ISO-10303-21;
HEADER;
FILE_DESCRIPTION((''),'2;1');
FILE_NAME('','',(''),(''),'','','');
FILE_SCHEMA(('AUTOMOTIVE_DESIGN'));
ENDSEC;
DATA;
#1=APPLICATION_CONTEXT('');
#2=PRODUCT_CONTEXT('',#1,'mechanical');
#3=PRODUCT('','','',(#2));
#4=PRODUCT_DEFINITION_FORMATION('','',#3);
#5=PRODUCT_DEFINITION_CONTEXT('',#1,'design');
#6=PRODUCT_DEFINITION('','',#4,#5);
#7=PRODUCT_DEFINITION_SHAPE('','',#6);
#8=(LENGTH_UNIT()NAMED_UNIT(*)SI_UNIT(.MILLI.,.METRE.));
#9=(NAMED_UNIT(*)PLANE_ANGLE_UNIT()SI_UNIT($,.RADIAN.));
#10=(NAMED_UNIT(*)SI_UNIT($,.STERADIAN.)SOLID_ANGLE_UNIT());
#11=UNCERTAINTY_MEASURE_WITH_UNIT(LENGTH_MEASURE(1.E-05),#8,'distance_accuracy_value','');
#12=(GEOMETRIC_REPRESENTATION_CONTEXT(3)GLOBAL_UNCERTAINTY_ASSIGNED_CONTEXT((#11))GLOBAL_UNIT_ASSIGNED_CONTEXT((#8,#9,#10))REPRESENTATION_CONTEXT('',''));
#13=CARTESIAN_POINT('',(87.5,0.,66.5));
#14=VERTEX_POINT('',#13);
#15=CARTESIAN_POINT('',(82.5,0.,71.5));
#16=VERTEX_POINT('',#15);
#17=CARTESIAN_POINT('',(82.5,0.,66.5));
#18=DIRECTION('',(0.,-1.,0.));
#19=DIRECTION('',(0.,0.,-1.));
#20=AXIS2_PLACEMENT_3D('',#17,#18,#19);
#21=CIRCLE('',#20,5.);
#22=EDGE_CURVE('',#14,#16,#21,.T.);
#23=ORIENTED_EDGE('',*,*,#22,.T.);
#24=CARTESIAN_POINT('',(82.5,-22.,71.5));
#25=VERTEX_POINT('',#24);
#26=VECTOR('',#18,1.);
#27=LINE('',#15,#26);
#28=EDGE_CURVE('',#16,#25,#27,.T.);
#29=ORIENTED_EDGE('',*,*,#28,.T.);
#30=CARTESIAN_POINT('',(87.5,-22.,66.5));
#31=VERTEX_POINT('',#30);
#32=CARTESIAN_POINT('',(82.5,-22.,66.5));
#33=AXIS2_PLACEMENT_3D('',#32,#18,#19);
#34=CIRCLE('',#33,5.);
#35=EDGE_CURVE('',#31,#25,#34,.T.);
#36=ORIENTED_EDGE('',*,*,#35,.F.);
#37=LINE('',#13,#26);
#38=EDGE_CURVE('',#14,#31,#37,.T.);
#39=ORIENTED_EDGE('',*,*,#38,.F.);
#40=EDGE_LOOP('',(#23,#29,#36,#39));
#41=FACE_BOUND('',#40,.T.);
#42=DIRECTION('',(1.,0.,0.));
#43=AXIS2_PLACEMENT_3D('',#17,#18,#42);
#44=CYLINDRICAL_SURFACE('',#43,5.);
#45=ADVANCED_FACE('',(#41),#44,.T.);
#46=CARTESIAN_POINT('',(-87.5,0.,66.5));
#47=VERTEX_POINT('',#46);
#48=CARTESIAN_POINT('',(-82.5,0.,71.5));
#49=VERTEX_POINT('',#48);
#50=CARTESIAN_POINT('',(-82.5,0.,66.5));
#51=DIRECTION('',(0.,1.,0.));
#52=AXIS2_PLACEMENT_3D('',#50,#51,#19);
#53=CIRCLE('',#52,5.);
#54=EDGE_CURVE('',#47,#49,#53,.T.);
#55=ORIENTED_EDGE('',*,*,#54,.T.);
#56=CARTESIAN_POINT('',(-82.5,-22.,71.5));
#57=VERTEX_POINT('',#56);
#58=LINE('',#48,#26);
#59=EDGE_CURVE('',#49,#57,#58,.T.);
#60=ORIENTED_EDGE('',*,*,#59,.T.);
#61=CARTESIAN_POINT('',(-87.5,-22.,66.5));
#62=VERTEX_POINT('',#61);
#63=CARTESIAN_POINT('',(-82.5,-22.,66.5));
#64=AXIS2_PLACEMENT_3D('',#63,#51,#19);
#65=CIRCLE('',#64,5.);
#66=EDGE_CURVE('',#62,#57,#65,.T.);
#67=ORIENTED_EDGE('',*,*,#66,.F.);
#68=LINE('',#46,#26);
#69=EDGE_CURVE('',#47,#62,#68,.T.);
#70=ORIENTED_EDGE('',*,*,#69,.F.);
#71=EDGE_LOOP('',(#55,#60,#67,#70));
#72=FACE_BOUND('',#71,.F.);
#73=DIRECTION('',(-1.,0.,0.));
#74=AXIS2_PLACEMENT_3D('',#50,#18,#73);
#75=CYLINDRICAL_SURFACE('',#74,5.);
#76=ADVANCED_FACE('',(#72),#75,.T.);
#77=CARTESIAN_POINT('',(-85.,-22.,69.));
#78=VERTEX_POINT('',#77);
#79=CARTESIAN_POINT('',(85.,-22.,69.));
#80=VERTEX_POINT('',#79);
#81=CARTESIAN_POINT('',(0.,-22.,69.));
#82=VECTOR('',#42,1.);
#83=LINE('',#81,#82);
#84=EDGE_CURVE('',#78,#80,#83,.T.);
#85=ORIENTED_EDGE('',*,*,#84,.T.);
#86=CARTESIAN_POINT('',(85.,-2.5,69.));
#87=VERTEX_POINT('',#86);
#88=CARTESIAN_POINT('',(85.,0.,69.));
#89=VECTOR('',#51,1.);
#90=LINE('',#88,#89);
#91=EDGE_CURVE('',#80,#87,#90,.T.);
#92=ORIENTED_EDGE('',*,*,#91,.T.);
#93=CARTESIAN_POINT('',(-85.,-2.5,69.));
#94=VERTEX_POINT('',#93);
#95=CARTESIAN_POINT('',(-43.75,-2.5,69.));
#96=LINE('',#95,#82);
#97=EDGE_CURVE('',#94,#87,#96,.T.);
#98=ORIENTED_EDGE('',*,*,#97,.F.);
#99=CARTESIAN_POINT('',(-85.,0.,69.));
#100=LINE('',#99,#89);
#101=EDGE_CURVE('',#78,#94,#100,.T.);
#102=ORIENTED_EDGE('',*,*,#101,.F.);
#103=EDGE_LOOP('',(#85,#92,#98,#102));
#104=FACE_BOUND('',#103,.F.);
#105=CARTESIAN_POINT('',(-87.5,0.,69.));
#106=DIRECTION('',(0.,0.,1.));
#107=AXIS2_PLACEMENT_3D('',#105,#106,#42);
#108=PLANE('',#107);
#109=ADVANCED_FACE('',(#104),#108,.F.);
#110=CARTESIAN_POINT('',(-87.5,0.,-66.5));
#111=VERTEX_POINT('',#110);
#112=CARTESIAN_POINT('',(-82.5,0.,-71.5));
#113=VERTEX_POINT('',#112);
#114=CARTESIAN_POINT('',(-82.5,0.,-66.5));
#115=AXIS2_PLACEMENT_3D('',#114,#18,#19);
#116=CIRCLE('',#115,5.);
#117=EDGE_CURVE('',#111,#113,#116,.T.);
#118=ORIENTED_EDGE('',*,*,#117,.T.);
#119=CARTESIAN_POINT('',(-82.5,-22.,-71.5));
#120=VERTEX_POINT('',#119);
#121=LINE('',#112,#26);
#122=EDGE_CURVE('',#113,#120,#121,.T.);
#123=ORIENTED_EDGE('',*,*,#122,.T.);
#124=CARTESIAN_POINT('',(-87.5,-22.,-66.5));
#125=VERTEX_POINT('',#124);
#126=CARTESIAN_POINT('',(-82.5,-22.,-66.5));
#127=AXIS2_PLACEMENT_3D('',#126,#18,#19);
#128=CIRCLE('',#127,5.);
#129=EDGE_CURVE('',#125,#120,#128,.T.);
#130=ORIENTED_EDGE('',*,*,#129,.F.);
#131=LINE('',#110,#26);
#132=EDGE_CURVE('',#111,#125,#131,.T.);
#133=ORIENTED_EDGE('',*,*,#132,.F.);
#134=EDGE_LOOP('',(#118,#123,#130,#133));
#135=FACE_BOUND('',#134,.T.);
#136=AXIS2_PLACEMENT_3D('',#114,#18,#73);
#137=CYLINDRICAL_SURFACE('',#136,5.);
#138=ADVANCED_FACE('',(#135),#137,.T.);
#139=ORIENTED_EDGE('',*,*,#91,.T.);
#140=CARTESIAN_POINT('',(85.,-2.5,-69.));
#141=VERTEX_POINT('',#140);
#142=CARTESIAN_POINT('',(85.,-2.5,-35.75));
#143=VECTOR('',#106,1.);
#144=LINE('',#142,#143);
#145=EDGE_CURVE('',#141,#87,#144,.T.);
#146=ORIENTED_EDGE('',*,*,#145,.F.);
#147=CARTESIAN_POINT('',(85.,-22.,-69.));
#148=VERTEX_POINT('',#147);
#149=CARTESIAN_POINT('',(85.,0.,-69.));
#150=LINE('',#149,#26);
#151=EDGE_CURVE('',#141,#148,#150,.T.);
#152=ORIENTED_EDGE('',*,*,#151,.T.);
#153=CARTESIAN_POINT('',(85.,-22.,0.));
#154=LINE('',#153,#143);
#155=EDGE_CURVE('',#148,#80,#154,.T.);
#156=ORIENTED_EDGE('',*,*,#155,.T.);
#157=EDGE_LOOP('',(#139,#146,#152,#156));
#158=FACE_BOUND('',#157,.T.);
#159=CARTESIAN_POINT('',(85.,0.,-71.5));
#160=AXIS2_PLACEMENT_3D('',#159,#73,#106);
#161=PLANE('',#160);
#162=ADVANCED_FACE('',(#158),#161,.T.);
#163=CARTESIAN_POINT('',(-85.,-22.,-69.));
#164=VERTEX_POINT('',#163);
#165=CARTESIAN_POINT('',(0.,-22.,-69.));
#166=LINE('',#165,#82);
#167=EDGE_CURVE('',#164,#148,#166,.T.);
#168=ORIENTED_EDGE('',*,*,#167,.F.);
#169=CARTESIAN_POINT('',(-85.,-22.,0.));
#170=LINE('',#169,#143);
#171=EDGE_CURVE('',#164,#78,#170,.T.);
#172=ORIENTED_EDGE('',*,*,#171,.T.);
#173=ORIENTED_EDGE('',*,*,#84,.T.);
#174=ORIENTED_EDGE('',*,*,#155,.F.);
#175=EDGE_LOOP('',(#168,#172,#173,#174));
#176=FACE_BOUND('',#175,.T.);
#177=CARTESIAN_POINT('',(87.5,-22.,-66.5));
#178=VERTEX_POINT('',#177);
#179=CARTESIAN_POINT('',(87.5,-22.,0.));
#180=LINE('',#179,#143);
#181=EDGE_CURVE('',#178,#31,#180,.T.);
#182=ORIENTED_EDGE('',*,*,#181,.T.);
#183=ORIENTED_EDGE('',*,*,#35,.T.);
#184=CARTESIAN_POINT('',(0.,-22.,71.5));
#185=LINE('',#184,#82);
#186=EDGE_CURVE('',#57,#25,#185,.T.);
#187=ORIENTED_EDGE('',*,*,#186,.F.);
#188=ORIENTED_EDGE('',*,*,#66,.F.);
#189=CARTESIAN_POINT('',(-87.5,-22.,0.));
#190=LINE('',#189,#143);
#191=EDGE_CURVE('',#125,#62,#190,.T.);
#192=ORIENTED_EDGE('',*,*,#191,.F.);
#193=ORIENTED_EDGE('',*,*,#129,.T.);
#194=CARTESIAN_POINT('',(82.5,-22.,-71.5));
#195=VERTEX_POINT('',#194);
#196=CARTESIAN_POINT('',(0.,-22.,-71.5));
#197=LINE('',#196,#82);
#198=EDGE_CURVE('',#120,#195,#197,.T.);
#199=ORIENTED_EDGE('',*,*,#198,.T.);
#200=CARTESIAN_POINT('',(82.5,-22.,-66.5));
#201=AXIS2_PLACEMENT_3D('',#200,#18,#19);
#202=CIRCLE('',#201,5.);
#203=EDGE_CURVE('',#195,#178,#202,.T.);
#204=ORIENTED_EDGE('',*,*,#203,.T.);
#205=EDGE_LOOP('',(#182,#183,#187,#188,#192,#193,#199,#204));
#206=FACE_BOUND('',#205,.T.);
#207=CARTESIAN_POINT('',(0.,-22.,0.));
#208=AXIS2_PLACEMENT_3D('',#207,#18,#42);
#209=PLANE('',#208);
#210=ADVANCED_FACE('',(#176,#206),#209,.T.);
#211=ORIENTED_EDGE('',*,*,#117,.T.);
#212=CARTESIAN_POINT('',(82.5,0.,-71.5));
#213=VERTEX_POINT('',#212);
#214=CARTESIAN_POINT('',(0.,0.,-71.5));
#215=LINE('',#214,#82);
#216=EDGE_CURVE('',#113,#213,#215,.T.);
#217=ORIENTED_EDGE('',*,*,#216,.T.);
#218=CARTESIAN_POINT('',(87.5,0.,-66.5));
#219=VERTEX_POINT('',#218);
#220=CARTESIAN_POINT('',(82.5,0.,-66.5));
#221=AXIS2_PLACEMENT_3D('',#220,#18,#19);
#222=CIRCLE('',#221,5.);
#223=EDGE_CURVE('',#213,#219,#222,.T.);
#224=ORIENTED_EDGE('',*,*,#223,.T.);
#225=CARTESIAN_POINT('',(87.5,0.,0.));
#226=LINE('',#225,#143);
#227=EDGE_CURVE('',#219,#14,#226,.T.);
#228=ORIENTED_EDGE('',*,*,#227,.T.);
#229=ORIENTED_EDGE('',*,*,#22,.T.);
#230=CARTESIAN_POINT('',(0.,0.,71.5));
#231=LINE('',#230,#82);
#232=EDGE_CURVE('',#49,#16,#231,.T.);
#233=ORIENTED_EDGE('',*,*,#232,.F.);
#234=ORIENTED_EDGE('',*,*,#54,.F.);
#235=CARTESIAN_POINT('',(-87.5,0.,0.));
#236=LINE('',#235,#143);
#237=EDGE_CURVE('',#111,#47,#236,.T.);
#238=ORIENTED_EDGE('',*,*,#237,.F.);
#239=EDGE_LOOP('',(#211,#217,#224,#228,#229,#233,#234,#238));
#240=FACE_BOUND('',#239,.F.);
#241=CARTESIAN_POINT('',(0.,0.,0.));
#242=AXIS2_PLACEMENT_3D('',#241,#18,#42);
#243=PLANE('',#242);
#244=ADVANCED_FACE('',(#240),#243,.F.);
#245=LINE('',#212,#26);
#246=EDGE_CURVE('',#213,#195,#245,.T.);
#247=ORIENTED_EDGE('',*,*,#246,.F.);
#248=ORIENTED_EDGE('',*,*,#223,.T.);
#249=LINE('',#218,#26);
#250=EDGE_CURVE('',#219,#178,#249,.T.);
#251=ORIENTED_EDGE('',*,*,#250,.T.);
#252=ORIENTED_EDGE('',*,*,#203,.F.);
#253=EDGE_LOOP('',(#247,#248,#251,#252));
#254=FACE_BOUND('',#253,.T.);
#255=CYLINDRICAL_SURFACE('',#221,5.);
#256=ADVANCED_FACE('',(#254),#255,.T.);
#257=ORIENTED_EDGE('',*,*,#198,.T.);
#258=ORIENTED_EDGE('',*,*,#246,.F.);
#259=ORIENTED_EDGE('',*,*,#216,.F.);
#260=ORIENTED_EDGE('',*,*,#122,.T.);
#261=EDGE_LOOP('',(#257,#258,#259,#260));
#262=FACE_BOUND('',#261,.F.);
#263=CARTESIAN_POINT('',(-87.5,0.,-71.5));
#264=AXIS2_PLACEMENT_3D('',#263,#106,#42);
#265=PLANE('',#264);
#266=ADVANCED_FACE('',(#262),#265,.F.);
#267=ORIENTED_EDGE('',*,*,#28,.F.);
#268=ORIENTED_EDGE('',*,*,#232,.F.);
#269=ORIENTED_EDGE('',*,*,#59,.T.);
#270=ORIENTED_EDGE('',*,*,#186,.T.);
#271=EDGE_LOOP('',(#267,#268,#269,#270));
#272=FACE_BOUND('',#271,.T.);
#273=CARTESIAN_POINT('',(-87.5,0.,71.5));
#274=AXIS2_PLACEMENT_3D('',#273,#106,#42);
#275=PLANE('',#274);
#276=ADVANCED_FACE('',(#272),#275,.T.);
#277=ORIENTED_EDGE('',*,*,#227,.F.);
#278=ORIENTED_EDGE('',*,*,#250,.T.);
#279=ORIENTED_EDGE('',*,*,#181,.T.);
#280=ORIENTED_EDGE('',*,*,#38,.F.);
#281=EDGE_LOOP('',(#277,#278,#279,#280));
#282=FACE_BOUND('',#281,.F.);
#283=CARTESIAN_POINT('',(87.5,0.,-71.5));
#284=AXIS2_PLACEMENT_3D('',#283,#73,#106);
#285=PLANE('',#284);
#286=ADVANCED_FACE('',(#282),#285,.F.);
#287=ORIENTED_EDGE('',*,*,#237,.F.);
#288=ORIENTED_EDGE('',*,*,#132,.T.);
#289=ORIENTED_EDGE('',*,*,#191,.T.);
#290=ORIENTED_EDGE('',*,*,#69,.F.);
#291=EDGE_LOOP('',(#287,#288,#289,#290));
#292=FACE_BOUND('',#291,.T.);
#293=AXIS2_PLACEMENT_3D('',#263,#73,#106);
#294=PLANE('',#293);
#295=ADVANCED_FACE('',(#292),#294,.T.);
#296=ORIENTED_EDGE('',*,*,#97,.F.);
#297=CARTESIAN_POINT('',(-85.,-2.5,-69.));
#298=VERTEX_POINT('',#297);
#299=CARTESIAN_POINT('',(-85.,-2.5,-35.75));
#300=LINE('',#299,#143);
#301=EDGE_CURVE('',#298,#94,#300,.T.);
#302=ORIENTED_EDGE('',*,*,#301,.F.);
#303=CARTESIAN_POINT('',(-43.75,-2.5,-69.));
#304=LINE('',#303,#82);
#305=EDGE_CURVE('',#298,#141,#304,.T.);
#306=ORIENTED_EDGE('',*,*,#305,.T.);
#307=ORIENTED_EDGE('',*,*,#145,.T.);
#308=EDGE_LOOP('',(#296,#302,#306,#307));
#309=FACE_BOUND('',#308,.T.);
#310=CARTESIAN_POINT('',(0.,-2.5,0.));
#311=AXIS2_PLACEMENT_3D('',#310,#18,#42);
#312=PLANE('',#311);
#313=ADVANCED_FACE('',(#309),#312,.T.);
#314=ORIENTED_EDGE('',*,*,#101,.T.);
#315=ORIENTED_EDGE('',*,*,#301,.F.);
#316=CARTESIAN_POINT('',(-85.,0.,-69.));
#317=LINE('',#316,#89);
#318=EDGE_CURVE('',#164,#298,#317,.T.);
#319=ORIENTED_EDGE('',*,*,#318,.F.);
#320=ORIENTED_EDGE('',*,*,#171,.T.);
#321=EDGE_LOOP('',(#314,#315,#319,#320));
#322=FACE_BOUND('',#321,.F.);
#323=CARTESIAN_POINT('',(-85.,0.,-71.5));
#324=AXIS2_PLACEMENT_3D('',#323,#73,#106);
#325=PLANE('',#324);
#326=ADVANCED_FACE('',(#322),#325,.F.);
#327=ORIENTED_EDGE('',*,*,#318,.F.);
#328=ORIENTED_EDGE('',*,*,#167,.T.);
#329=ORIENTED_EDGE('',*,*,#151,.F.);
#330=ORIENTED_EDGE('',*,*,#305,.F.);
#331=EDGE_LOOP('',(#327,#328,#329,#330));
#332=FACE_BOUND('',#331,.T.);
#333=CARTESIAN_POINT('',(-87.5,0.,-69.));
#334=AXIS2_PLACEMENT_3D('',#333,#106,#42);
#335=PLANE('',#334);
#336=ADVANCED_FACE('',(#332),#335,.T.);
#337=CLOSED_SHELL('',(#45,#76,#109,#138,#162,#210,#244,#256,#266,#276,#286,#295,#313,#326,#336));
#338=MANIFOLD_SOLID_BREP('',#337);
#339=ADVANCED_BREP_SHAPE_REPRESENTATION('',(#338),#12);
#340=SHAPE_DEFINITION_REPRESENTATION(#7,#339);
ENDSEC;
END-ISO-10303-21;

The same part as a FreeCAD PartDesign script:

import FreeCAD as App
import Part
import Sketcher


def edges_at(feature, points):
    """Names of the edges that pass closest to the given points."""
    edges = feature.Shape.Edges
    near = lambda p: min(range(len(edges)), key=lambda i: edges[i].distToShape(Part.Vertex(*p))[0])
    return sorted({f"Edge{near(p) + 1}" for p in points})


def faces_at(feature, points):
    """Names of the faces that lie closest to the given points."""
    faces = feature.Shape.Faces
    near = lambda p: min(range(len(faces)), key=lambda i: faces[i].distToShape(Part.Vertex(*p))[0])
    return sorted({f"Face{near(p) + 1}" for p in points})

doc = App.newDocument("Part")
body = doc.addObject("PartDesign::Body", "Body")

# Sketch on XZ plane
sketch1 = doc.addObject("Sketcher::SketchObject", "Sketch")
body.addObject(sketch1)
sketch1.AttachmentSupport = (doc.XZ_Plane, [""])
sketch1.MapMode = "FlatFace"
sketch1.addGeometry([
    Part.LineSegment(App.Vector(-88, 72, 0), App.Vector(-88, -72, 0)),
    Part.LineSegment(App.Vector(-88, -72, 0), App.Vector(88, -72, 0)),
    Part.LineSegment(App.Vector(88, -72, 0), App.Vector(88, 72, 0)),
    Part.LineSegment(App.Vector(88, 72, 0), App.Vector(-88, 72, 0)),
], False)
sketch1.addConstraint([
    Sketcher.Constraint("Coincident", 0, 2, 1, 1),
    Sketcher.Constraint("Coincident", 1, 2, 2, 1),
    Sketcher.Constraint("Coincident", 2, 2, 3, 1),
    Sketcher.Constraint("Coincident", 3, 2, 0, 1),
    Sketcher.Constraint("Vertical", 0),
    Sketcher.Constraint("Horizontal", 1),
    Sketcher.Constraint("Vertical", 2),
    Sketcher.Constraint("Horizontal", 3),
    Sketcher.Constraint("Symmetric", 0, 2, 2, 2, -1, 1),
    Sketcher.Constraint("DistanceX", 1, 1, 1, 2, 175.0),
    Sketcher.Constraint("DistanceY", 0, 2, 0, 1, 143.0),
])
pad1 = doc.addObject("PartDesign::Pad", "Pad")
body.addObject(pad1)
pad1.Profile = sketch1
pad1.Length = 22
doc.recompute()

thickness = doc.addObject("PartDesign::Thickness", "Thickness")
body.addObject(thickness)
thickness.Base = (pad1, faces_at(pad1, [(0, -22, 0)]))
thickness.Value = 2.5
thickness.Reversed = True
thickness.Join = "Arc"
doc.recompute()

fillet = doc.addObject("PartDesign::Fillet", "Fillet")
body.addObject(fillet)
fillet.Base = (thickness, edges_at(thickness, [
    (-87.5, -11, 71.5),
    (-87.5, -11, -71.5),
    (87.5, -11, 71.5),
    (87.5, -11, -71.5),
]))
fillet.Radius = 5

doc.recompute()
